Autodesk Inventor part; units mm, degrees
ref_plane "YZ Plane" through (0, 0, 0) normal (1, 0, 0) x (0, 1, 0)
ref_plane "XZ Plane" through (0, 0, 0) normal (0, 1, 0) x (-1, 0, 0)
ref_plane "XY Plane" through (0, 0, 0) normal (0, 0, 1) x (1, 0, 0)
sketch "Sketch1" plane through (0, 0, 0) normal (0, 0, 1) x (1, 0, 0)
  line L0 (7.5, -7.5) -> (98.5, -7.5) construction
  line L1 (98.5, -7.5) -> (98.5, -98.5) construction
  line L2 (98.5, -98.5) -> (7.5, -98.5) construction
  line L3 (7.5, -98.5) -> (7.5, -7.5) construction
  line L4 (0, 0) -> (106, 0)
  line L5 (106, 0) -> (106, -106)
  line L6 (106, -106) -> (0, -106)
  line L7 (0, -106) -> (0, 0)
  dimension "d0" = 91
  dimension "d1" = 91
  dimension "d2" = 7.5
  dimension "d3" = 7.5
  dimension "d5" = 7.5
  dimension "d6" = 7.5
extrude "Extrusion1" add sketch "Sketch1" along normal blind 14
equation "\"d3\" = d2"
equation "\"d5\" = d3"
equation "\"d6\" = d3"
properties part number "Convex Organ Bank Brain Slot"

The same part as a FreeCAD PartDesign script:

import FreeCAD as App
import Part
import Sketcher
from FreeCAD import Vector


def add_polygon(sketch, points):
    """Adds a closed chain of lines whose ends are joined by coincident constraints."""
    first, n = sketch.GeometryCount, len(points)
    for a, b in zip(points, points[1:] + points[:1]):
        sketch.addGeometry(Part.LineSegment(App.Vector(*a, 0), App.Vector(*b, 0)), False)
    for i in range(n):
        sketch.addConstraint(Sketcher.Constraint("Coincident", first + i, 2, first + (i + 1) % n, 1))

doc = App.newDocument("Part")
body = doc.addObject("PartDesign::Body", "Body")

sketch1 = body.newObject("Sketcher::SketchObject", "Sketch")
sketch1.AttachmentSupport = (doc.getObject("XY_Plane"), [""])
sketch1.MapMode = "FlatFace"
add_polygon(sketch1, [(106, 0), (0, 0), (0, -106), (106, -106)])
sketch1.addConstraint([
    Sketcher.Constraint("Horizontal", 0),
    Sketcher.Constraint("Vertical", 1),
    Sketcher.Constraint("Horizontal", 2),
    Sketcher.Constraint("Vertical", 3),
    Sketcher.Constraint("Coincident", 0, 2, -1, 1),
    Sketcher.Constraint("Equal", 2, 1),
    Sketcher.Constraint("DistanceX", 0, 2, 0, 1, 106.0),
])
pad1 = body.newObject("PartDesign::Pad", "Pad")
pad1.Profile = sketch1
pad1.Length = 14

doc.recompute()
